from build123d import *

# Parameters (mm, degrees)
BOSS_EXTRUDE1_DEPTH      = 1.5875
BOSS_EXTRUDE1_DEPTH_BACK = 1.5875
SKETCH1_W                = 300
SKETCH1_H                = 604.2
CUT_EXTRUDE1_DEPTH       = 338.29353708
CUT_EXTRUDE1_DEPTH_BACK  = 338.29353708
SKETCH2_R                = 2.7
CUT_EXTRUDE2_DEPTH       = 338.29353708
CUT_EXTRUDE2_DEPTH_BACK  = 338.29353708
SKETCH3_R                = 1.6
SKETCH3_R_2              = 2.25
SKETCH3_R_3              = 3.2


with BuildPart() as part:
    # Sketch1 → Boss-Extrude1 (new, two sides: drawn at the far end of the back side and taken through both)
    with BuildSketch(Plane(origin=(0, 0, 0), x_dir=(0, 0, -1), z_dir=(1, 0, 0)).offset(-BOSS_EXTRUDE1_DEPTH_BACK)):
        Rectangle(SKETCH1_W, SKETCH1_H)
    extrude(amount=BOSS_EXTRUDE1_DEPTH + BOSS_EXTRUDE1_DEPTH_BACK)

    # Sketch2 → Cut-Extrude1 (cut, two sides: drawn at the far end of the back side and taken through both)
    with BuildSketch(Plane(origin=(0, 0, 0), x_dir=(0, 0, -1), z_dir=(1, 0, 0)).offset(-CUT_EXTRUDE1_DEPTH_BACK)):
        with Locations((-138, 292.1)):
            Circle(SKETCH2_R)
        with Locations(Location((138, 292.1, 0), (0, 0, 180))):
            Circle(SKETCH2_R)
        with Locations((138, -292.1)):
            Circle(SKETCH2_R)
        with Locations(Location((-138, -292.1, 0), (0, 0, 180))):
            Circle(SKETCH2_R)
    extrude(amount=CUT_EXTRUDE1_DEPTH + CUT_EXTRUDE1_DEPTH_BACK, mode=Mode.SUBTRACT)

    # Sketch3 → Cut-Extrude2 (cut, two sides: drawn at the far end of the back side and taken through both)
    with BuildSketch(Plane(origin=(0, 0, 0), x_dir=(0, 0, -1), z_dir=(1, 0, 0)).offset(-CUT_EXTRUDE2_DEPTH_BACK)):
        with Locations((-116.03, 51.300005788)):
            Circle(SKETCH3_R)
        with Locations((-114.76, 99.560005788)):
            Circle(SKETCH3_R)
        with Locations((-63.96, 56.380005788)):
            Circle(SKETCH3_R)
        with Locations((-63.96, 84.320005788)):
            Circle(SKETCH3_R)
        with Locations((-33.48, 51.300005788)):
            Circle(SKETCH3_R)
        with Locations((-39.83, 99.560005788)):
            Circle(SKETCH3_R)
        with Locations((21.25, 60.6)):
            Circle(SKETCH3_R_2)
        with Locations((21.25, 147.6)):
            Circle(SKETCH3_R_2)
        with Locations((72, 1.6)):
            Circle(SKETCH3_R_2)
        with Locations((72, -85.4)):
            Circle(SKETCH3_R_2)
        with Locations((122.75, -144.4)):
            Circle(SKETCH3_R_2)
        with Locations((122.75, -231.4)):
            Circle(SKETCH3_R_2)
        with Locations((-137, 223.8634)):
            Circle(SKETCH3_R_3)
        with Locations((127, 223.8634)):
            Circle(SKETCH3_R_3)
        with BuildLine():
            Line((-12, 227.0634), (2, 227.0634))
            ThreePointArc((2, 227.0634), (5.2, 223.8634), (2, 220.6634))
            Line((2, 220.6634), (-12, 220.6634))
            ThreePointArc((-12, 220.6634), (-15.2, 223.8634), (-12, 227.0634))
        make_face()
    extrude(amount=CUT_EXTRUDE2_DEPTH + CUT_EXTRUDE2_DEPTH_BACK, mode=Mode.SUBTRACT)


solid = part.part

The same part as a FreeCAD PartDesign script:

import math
import FreeCAD as App
import Part
import Sketcher

V = App.Vector


def add_polygon(sketch, points):
    """Adds a closed chain of lines whose ends are joined by coincident constraints."""
    first, n = sketch.GeometryCount, len(points)
    for a, b in zip(points, points[1:] + points[:1]):
        sketch.addGeometry(Part.LineSegment(App.Vector(*a, 0), App.Vector(*b, 0)), False)
    for i in range(n):
        sketch.addConstraint(Sketcher.Constraint("Coincident", first + i, 2, first + (i + 1) % n, 1))

doc = App.newDocument("Part")
body = doc.addObject("PartDesign::Body", "Body")

# Sketch on YZ plane
sketch1 = body.newObject("Sketcher::SketchObject", "Sketch")
sketch1.AttachmentSupport = (doc.getObject("YZ_Plane"), [""])
sketch1.MapMode = "FlatFace"
add_polygon(sketch1, [(302, 150), (-302, 150), (-302, -150), (302, -150)])  # lines 0-3
sketch1.addConstraint(Sketcher.Constraint("Horizontal", 0))
sketch1.addConstraint(Sketcher.Constraint("Vertical", 1))
sketch1.addConstraint(Sketcher.Constraint("Horizontal", 2))
sketch1.addConstraint(Sketcher.Constraint("Vertical", 3))
sketch1.addConstraint(Sketcher.Constraint("Symmetric", 0, 2, 2, 2, -1, 1))
sketch1.addConstraint(Sketcher.Constraint("DistanceY", 1, 2, 1, 1, 300.0))
sketch1.addConstraint(Sketcher.Constraint("DistanceX", 0, 2, 0, 1, 604.2))
pad1 = body.newObject("PartDesign::Pad", "Pad")
pad1.Profile = sketch1
pad1.Type = "TwoLengths"
pad1.Length = 1.5875
pad1.Length2 = 1.5875

# Sketch on YZ plane
sketch2 = body.newObject("Sketcher::SketchObject", "Sketch001")
sketch2.AttachmentSupport = (doc.getObject("YZ_Plane"), [""])
sketch2.MapMode = "FlatFace"
sketch2.addGeometry(Part.Circle(V(292.1, 138, 0), V(0, 0, 1), 2.7), False)
sketch2.addGeometry(Part.Circle(V(292.1, -138, 0), V(0, 0, 1), 2.7), False)
sketch2.addGeometry(Part.Circle(V(-292.1, -138, 0), V(0, 0, 1), 2.7), False)
sketch2.addGeometry(Part.Circle(V(-292.1, 138, 0), V(0, 0, 1), 2.7), False)
sketch2.addConstraint(Sketcher.Constraint("Equal", 0, 1))
sketch2.addConstraint(Sketcher.Constraint("Equal", 1, 2))
sketch2.addConstraint(Sketcher.Constraint("Equal", 2, 3))
sketch2.addConstraint(Sketcher.Constraint("Symmetric", 0, 3, 2, 3, -1, 1))
sketch2.addConstraint(Sketcher.Constraint("Symmetric", 1, 3, 3, 3, -1, 1))
sketch2.addConstraint(Sketcher.Constraint("Symmetric", 1, 3, 2, 3, -2))
sketch2.addConstraint(Sketcher.Constraint("Diameter", 0, 5.4))
sketch2.addConstraint(Sketcher.Constraint("DistanceY", -1, 1, 0, 3, 138.0))
sketch2.addConstraint(Sketcher.Constraint("DistanceX", -1, 1, 0, 3, 292.1))
pocket1 = body.newObject("PartDesign::Pocket", "Pocket")
pocket1.Profile = sketch2
pocket1.Type = "ThroughAll"
pocket1.Midplane = True

# Sketch on YZ plane
sketch3 = body.newObject("Sketcher::SketchObject", "Sketch002")
sketch3.AttachmentSupport = (doc.getObject("YZ_Plane"), [""])
sketch3.MapMode = "FlatFace"
sketch3.addGeometry(Part.Circle(V(51.3, 116, 0), V(0, 0, 1), 1.6), False)
sketch3.addGeometry(Part.Circle(V(99.6, 114.8, 0), V(0, 0, 1), 1.6), False)
sketch3.addGeometry(Part.Circle(V(56.4, 64, 0), V(0, 0, 1), 1.6), False)
sketch3.addGeometry(Part.Circle(V(84.3, 64, 0), V(0, 0, 1), 1.6), False)
sketch3.addGeometry(Part.Circle(V(51.3, 33.5, 0), V(0, 0, 1), 1.6), False)
sketch3.addGeometry(Part.Circle(V(99.6, 39.8, 0), V(0, 0, 1), 1.6), False)
sketch3.addGeometry(Part.Circle(V(60.6, -21.2, 0), V(0, 0, 1), 2.2), False)
sketch3.addGeometry(Part.Circle(V(147.6, -21.2, 0), V(0, 0, 1), 2.2), False)
sketch3.addGeometry(Part.Circle(V(1.6, -72, 0), V(0, 0, 1), 2.2), False)
sketch3.addGeometry(Part.Circle(V(-85.4, -72, 0), V(0, 0, 1), 2.2), False)
sketch3.addGeometry(Part.Circle(V(-144.4, -122.8, 0), V(0, 0, 1), 2.2), False)
sketch3.addGeometry(Part.Circle(V(-231.4, -122.8, 0), V(0, 0, 1), 2.2), False)
sketch3.addGeometry(Part.Circle(V(223.9, 137, 0), V(0, 0, 1), 3.2), False)
sketch3.addGeometry(Part.Circle(V(223.9, -127, 0), V(0, 0, 1), 3.2), False)
sketch3.addGeometry(Part.LineSegment(V(227.1, -2, 0), V(227.1, 12, 0)), False)
sketch3.addGeometry(Part.ArcOfCircle(Part.Circle(V(223.9, 12, 0), V(0, 0, 1), 3.2), math.radians(0), math.radians(180)), False)
sketch3.addGeometry(Part.LineSegment(V(220.7, 12, 0), V(220.7, -2, 0)), False)
sketch3.addGeometry(Part.ArcOfCircle(Part.Circle(V(223.9, -2, 0), V(0, 0, 1), 3.2), math.radians(180), math.radians(360)), False)
sketch3.addConstraint(Sketcher.Constraint("Tangent", 14, 2, 15, 1))
sketch3.addConstraint(Sketcher.Constraint("Tangent", 15, 2, 16, 1))
sketch3.addConstraint(Sketcher.Constraint("Tangent", 16, 2, 17, 1))
sketch3.addConstraint(Sketcher.Constraint("Tangent", 17, 2, 14, 1))
sketch3.addConstraint(Sketcher.Constraint("Vertical", 14))
sketch3.addConstraint(Sketcher.Constraint("Vertical", 16))
sketch3.addConstraint(Sketcher.Constraint("Equal", 0, 1))
sketch3.addConstraint(Sketcher.Constraint("Equal", 1, 2))
sketch3.addConstraint(Sketcher.Constraint("Equal", 2, 3))
sketch3.addConstraint(Sketcher.Constraint("Equal", 3, 4))
sketch3.addConstraint(Sketcher.Constraint("Equal", 4, 5))
sketch3.addConstraint(Sketcher.Constraint("Equal", 6, 7))
sketch3.addConstraint(Sketcher.Constraint("Equal", 7, 8))
sketch3.addConstraint(Sketcher.Constraint("Equal", 8, 9))
sketch3.addConstraint(Sketcher.Constraint("Equal", 9, 10))
sketch3.addConstraint(Sketcher.Constraint("Equal", 10, 11))
sketch3.addConstraint(Sketcher.Constraint("Equal", 12, 13))
sketch3.addConstraint(Sketcher.Constraint("Equal", 13, 15))
sketch3.addConstraint(Sketcher.Constraint("Horizontal", 2, 3, 3, 3))
sketch3.addConstraint(Sketcher.Constraint("Horizontal", 6, 3, 7, 3))
sketch3.addConstraint(Sketcher.Constraint("Horizontal", 8, 3, 9, 3))
sketch3.addConstraint(Sketcher.Constraint("Horizontal", 10, 3, 11, 3))
sketch3.addConstraint(Sketcher.Constraint("Vertical", 0, 3, 4, 3))
sketch3.addConstraint(Sketcher.Constraint("Vertical", 1, 3, 5, 3))
sketch3.addConstraint(Sketcher.Constraint("Vertical", 12, 3, 13, 3))
sketch3.addConstraint(Sketcher.Constraint("Vertical", 13, 3, 15, 3))
sketch3.addConstraint(Sketcher.Constraint("Diameter", 0, 3.2))
sketch3.addConstraint(Sketcher.Constraint("Diameter", 6, 4.5))
sketch3.addConstraint(Sketcher.Constraint("Diameter", 12, 6.4))
sketch3.addConstraint(Sketcher.Constraint("DistanceY", 14, 1, 14, 2, 14.0))
sketch3.addConstraint(Sketcher.Constraint("DistanceY", 8, 3, -1, 1, 72.0))
sketch3.addConstraint(Sketcher.Constraint("DistanceY", -1, 1, 12, 3, 137.0))
sketch3.addConstraint(Sketcher.Constraint("DistanceY", 13, 3, -1, 1, 127.0))
sketch3.addConstraint(Sketcher.Constraint("DistanceY", -1, 1, 15, 3, 12.0))
sketch3.addConstraint(Sketcher.Constraint("DistanceX", 6, 3, 7, 3, 87.0))
sketch3.addConstraint(Sketcher.Constraint("DistanceX", 8, 3, 6, 3, 59.0))
sketch3.addConstraint(Sketcher.Constraint("DistanceX", 9, 3, 8, 3, 87.0))
sketch3.addConstraint(Sketcher.Constraint("DistanceX", 10, 3, 9, 3, 59.0))
sketch3.addConstraint(Sketcher.Constraint("DistanceX", 11, 3, 10, 3, 87.0))
sketch3.addConstraint(Sketcher.Constraint("DistanceX", -1, 1, 6, 3, 60.6))
sketch3.addConstraint(Sketcher.Constraint("DistanceY", 2, 3, 1, 3, 50.8))
sketch3.addConstraint(Sketcher.Constraint("DistanceY", 5, 3, 0, 3, 76.2))
sketch3.addConstraint(Sketcher.Constraint("DistanceY", 10, 3, 6, 3, 101.5))
sketch3.addConstraint(Sketcher.Constraint("DistanceY", -1, 1, 0, 3, 116.03))
sketch3.addConstraint(Sketcher.Constraint("DistanceY", -1, 1, 1, 3, 114.76))
sketch3.addConstraint(Sketcher.Constraint("DistanceY", -1, 1, 4, 3, 33.48))
sketch3.addConstraint(Sketcher.Constraint("DistanceY", 6, 3, -1, 1, 21.25))
sketch3.addConstraint(Sketcher.Constraint("DistanceX", 0, 3, 1, 3, 48.26))
sketch3.addConstraint(Sketcher.Constraint("DistanceX", 0, 3, 2, 3, 5.08))
sketch3.addConstraint(Sketcher.Constraint("DistanceX", 2, 3, 3, 3, 27.94))
sketch3.addConstraint(Sketcher.Constraint("DistanceX", -1, 1, 12, 3, 223.8634))
sketch3.addConstraint(Sketcher.Constraint("DistanceX", -1, 1, 0, 3, 51.300006))
pocket2 = body.newObject("PartDesign::Pocket", "Pocket001")
pocket2.Profile = sketch3
pocket2.Type = "ThroughAll"
pocket2.Midplane = True

doc.recompute()
